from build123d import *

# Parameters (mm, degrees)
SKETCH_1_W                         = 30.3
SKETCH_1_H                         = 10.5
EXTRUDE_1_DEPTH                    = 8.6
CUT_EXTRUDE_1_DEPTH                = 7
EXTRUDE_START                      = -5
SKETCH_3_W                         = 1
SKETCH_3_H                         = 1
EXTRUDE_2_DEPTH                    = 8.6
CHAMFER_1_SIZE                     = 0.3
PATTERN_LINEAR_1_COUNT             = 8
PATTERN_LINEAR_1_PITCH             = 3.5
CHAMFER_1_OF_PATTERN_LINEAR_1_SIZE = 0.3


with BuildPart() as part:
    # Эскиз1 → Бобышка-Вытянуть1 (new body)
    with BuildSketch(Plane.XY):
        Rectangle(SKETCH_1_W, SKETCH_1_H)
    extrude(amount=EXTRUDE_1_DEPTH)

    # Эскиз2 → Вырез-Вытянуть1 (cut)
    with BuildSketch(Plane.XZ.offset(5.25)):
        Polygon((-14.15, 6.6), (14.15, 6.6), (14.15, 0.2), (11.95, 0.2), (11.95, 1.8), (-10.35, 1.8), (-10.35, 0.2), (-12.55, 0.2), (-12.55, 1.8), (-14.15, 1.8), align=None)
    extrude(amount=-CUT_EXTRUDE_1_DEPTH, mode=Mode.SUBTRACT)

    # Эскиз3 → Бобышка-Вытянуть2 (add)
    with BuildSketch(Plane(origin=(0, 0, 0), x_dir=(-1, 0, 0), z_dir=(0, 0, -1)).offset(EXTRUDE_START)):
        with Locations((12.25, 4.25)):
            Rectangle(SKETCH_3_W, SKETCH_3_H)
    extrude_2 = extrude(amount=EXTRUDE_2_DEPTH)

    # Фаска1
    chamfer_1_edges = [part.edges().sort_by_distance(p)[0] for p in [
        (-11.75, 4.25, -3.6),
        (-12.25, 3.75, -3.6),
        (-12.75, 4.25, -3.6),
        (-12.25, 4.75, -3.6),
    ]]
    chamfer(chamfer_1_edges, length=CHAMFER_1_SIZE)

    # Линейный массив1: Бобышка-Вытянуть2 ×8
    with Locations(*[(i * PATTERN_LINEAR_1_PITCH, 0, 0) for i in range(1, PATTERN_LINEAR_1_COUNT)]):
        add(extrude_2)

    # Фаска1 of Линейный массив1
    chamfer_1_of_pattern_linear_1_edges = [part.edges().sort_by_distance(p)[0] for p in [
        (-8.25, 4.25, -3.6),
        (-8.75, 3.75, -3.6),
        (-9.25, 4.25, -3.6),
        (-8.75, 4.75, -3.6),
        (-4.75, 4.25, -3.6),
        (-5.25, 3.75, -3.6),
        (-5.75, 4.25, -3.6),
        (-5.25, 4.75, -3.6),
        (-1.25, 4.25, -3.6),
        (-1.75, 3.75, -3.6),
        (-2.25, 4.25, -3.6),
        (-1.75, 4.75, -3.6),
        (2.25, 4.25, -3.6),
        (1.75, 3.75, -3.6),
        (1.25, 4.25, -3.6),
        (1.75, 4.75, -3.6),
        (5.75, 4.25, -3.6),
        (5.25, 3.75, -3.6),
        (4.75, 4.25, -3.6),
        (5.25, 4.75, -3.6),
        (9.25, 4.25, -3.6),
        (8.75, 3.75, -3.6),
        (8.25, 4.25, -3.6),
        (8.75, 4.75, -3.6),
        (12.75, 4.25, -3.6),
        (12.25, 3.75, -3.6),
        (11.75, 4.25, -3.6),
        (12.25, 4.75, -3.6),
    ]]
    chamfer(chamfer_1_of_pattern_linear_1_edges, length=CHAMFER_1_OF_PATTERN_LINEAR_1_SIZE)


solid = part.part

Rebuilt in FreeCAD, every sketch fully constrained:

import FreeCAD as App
import Part
import Sketcher

V = App.Vector


def edges_at(feature, points):
    """Names of the edges that pass closest to the given points."""
    edges = feature.Shape.Edges
    near = lambda p: min(range(len(edges)), key=lambda i: edges[i].distToShape(Part.Vertex(*p))[0])
    return sorted({f"Edge{near(p) + 1}" for p in points})

doc = App.newDocument("Part")
body = doc.addObject("PartDesign::Body", "Body")

# Sketch on XY plane
sketch1 = body.newObject("Sketcher::SketchObject", "Sketch")
sketch1.AttachmentSupport = (doc.getObject("XY_Plane"), [""])
sketch1.MapMode = "FlatFace"
sketch1.addGeometry([
    Part.LineSegment(V(-15, 5, 0), V(-15, -5, 0)),
    Part.LineSegment(V(-15, -5, 0), V(15, -5, 0)),
    Part.LineSegment(V(15, -5, 0), V(15, 5, 0)),
    Part.LineSegment(V(15, 5, 0), V(-15, 5, 0)),
], False)
sketch1.addConstraint([
    Sketcher.Constraint("Coincident", 0, 2, 1, 1),
    Sketcher.Constraint("Coincident", 1, 2, 2, 1),
    Sketcher.Constraint("Coincident", 2, 2, 3, 1),
    Sketcher.Constraint("Coincident", 3, 2, 0, 1),
    Sketcher.Constraint("Vertical", 0),
    Sketcher.Constraint("Horizontal", 1),
    Sketcher.Constraint("Vertical", 2),
    Sketcher.Constraint("Horizontal", 3),
    Sketcher.Constraint("Symmetric", 0, 2, 2, 2, -1, 1),
    Sketcher.Constraint("DistanceX", 1, 1, 1, 2, 30.3),
    Sketcher.Constraint("DistanceY", 0, 2, 0, 1, 10.5),
])
pad1 = body.newObject("PartDesign::Pad", "Pad")
pad1.Profile = sketch1
pad1.Length = 8.6

# Sketch on XZ plane
sketch2 = body.newObject("Sketcher::SketchObject", "Sketch001")
sketch2.AttachmentSupport = (doc.getObject("XZ_Plane"), [""])
sketch2.MapMode = "FlatFace"
sketch2.AttachmentOffset = App.Placement(V(0, 0, 5.25), App.Rotation())
sketch2.addGeometry([
    Part.LineSegment(V(14.2, 6.6, 0), V(-14.2, 6.6, 0)),  # 0
    Part.LineSegment(V(-14.2, 6.6, 0), V(-14.2, 1.8, 0)),  # 1
    Part.LineSegment(V(-14.2, 1.8, 0), V(-12.6, 1.8, 0)),  # 2
    Part.LineSegment(V(-12.6, 1.8, 0), V(-12.6, 0.2, 0)),  # 3
    Part.LineSegment(V(-12.6, 0.2, 0), V(-10.3, 0.2, 0)),  # 4
    Part.LineSegment(V(-10.3, 0.2, 0), V(-10.3, 1.8, 0)),  # 5
    Part.LineSegment(V(-10.3, 1.8, 0), V(11.9, 1.8, 0)),  # 6
    Part.LineSegment(V(11.9, 1.8, 0), V(11.9, 0.2, 0)),  # 7
    Part.LineSegment(V(11.9, 0.2, 0), V(14.2, 0.2, 0)),  # 8
    Part.LineSegment(V(14.2, 0.2, 0), V(14.2, 6.6, 0)),  # 9
], False)
sketch2.addConstraint([
    Sketcher.Constraint("Coincident", 0, 2, 1, 1),
    Sketcher.Constraint("Coincident", 1, 2, 2, 1),
    Sketcher.Constraint("Coincident", 2, 2, 3, 1),
    Sketcher.Constraint("Coincident", 3, 2, 4, 1),
    Sketcher.Constraint("Coincident", 4, 2, 5, 1),
    Sketcher.Constraint("Coincident", 5, 2, 6, 1),
    Sketcher.Constraint("Coincident", 6, 2, 7, 1),
    Sketcher.Constraint("Coincident", 7, 2, 8, 1),
    Sketcher.Constraint("Coincident", 8, 2, 9, 1),
    Sketcher.Constraint("Coincident", 9, 2, 0, 1),
    Sketcher.Constraint("Horizontal", 0),
    Sketcher.Constraint("Vertical", 1),
    Sketcher.Constraint("Horizontal", 2),
    Sketcher.Constraint("Vertical", 3),
    Sketcher.Constraint("Horizontal", 4),
    Sketcher.Constraint("Vertical", 5),
    Sketcher.Constraint("Horizontal", 6),
    Sketcher.Constraint("Vertical", 7),
    Sketcher.Constraint("Horizontal", 8),
    Sketcher.Constraint("Vertical", 9),
    Sketcher.Constraint("Horizontal", 2, 2, 5, 2),
    Sketcher.Constraint("Horizontal", 4, 2, 7, 2),
    Sketcher.Constraint("Equal", 4, 8),
    Sketcher.Constraint("Equal", 2, 3),
    Sketcher.Constraint("DistanceX", 0, 2, 0, 1, 28.3),
    Sketcher.Constraint("DistanceX", 2, 1, 2, 2, 1.6),
    Sketcher.Constraint("DistanceX", 4, 1, 4, 2, 2.2),
    Sketcher.Constraint("DistanceY", 1, 2, 1, 1, 4.8),
    Sketcher.Constraint("DistanceY", -1, 1, 0, 2, 6.6),
    Sketcher.Constraint("DistanceX", 0, 2, -1, 1, 14.15),
])
pocket1 = body.newObject("PartDesign::Pocket", "Pocket")
pocket1.Profile = sketch2
pocket1.Length = 7

# Sketch on XY plane
sketch3 = body.newObject("Sketcher::SketchObject", "Sketch002")
sketch3.AttachmentSupport = (doc.getObject("XY_Plane"), [""])
sketch3.MapMode = "FlatFace"
sketch3.AttachmentOffset = App.Placement(V(0, 0, 5), App.Rotation())
sketch3.addGeometry([
    Part.LineSegment(V(-11.8, 4.8, 0), V(-11.8, 3.8, 0)),
    Part.LineSegment(V(-11.8, 3.8, 0), V(-12.8, 3.8, 0)),
    Part.LineSegment(V(-12.8, 3.8, 0), V(-12.8, 4.8, 0)),
    Part.LineSegment(V(-12.8, 4.8, 0), V(-11.8, 4.8, 0)),
], False)
sketch3.addConstraint([
    Sketcher.Constraint("Coincident", 0, 2, 1, 1),
    Sketcher.Constraint("Coincident", 1, 2, 2, 1),
    Sketcher.Constraint("Coincident", 2, 2, 3, 1),
    Sketcher.Constraint("Coincident", 3, 2, 0, 1),
    Sketcher.Constraint("Vertical", 0),
    Sketcher.Constraint("Horizontal", 1),
    Sketcher.Constraint("Vertical", 2),
    Sketcher.Constraint("Horizontal", 3),
    Sketcher.Constraint("Equal", 3, 0),
    Sketcher.Constraint("DistanceX", 1, 2, 1, 1, 1.0),
    Sketcher.Constraint("DistanceX", 0, 2, -1, 1, 11.75),
    Sketcher.Constraint("DistanceY", -1, 1, 0, 2, 3.75),
])
pad2 = body.newObject("PartDesign::Pad", "Pad001")
pad2.Profile = sketch3
pad2.Length = 8.6
pad2.Reversed = True
doc.recompute()

chamfer = body.newObject("PartDesign::Chamfer", "Chamfer")
chamfer.Base = (pad2, edges_at(pad2, [
    (-11.75, 4.25, -3.6),
    (-12.25, 3.75, -3.6),
    (-12.75, 4.25, -3.6),
    (-12.25, 4.75, -3.6),
]))
chamfer.Size = 0.3
doc.recompute()

linearpattern = body.newObject("PartDesign::LinearPattern", "LinearPattern")
linearpattern.Originals = [pad2]
linearpattern.Direction = (doc.getObject("X_Axis"), [""])
linearpattern.Mode = "offset"
linearpattern.Offset = 3.5
linearpattern.Occurrences = 8
body.Tip = linearpattern
doc.recompute()

chamfer2 = body.newObject("PartDesign::Chamfer", "Chamfer001")
chamfer2.Base = (linearpattern, edges_at(linearpattern, [
    (-8.25, 4.25, -3.6),
    (-8.75, 3.75, -3.6),
    (-9.25, 4.25, -3.6),
    (-8.75, 4.75, -3.6),
    (-4.75, 4.25, -3.6),
    (-5.25, 3.75, -3.6),
    (-5.75, 4.25, -3.6),
    (-5.25, 4.75, -3.6),
    (-1.25, 4.25, -3.6),
    (-1.75, 3.75, -3.6),
    (-2.25, 4.25, -3.6),
    (-1.75, 4.75, -3.6),
    (2.25, 4.25, -3.6),
    (1.75, 3.75, -3.6),
    (1.25, 4.25, -3.6),
    (1.75, 4.75, -3.6),
    (5.75, 4.25, -3.6),
    (5.25, 3.75, -3.6),
    (4.75, 4.25, -3.6),
    (5.25, 4.75, -3.6),
    (9.25, 4.25, -3.6),
    (8.75, 3.75, -3.6),
    (8.25, 4.25, -3.6),
    (8.75, 4.75, -3.6),
    (12.75, 4.25, -3.6),
    (12.25, 3.75, -3.6),
    (11.75, 4.25, -3.6),
    (12.25, 4.75, -3.6),
]))
chamfer2.Size = 0.3

doc.recompute()
